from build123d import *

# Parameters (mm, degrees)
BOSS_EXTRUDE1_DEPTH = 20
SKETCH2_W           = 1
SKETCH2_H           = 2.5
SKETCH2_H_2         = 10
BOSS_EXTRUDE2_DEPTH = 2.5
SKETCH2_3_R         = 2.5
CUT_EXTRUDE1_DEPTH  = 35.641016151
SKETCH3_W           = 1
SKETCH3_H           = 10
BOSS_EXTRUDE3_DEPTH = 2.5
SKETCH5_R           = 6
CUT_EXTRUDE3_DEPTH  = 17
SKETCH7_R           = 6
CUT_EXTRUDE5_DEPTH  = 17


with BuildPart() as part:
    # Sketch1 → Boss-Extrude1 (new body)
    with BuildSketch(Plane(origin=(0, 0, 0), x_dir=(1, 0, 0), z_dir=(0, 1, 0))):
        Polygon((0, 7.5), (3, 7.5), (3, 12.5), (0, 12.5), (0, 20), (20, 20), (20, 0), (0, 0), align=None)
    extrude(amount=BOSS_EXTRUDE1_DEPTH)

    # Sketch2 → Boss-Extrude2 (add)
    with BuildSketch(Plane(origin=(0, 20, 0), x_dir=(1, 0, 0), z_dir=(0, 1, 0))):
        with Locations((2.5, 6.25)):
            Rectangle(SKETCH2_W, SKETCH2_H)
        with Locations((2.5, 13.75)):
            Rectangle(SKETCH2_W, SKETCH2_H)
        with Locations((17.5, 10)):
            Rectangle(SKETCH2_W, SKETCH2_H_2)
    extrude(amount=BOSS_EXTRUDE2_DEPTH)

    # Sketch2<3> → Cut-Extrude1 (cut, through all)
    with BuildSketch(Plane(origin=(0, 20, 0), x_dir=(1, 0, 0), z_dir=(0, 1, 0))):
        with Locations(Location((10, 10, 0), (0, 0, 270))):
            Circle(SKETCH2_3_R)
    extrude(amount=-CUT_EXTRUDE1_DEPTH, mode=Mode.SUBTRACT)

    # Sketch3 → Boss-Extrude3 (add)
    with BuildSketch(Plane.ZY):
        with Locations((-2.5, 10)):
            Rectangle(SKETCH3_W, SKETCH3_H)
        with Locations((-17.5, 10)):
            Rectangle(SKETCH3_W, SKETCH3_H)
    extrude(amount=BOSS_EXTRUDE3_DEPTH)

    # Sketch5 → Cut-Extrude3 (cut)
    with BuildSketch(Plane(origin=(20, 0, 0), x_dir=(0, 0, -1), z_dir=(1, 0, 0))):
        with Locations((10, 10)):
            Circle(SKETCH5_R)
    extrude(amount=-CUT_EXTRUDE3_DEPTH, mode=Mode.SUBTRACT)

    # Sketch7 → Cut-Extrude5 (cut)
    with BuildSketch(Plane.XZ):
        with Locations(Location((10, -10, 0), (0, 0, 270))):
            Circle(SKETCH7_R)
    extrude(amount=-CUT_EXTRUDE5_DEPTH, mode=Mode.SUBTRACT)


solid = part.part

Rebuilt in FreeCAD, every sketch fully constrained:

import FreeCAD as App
import Part
import Sketcher

V = App.Vector


def add_polygon(sketch, points):
    """Adds a closed chain of lines whose ends are joined by coincident constraints."""
    first, n = sketch.GeometryCount, len(points)
    for a, b in zip(points, points[1:] + points[:1]):
        sketch.addGeometry(Part.LineSegment(App.Vector(*a, 0), App.Vector(*b, 0)), False)
    for i in range(n):
        sketch.addConstraint(Sketcher.Constraint("Coincident", first + i, 2, first + (i + 1) % n, 1))

doc = App.newDocument("Part")
body = doc.addObject("PartDesign::Body", "Body")

# Sketch on XZ plane
sketch1 = body.newObject("Sketcher::SketchObject", "Sketch")
sketch1.AttachmentSupport = (doc.getObject("XZ_Plane"), [""])
sketch1.MapMode = "FlatFace"
add_polygon(sketch1, [(3, -7.5), (0, -7.5), (0, 0), (20, 0), (20, -20), (0, -20), (0, -12.5), (3, -12.5)])  # lines 0-7
sketch1.addConstraint(Sketcher.Constraint("Horizontal", 0))
sketch1.addConstraint(Sketcher.Constraint("Vertical", 1))
sketch1.addConstraint(Sketcher.Constraint("Horizontal", 2))
sketch1.addConstraint(Sketcher.Constraint("Vertical", 3))
sketch1.addConstraint(Sketcher.Constraint("Horizontal", 4))
sketch1.addConstraint(Sketcher.Constraint("Vertical", 5))
sketch1.addConstraint(Sketcher.Constraint("Horizontal", 6))
sketch1.addConstraint(Sketcher.Constraint("Vertical", 7))
sketch1.addConstraint(Sketcher.Constraint("Coincident", 1, 2, -1, 1))
sketch1.addConstraint(Sketcher.Constraint("PointOnObject", 4, 2, -2))
sketch1.addConstraint(Sketcher.Constraint("Equal", 4, 3))
sketch1.addConstraint(Sketcher.Constraint("Equal", 1, 5))
sketch1.addConstraint(Sketcher.Constraint("DistanceX", 0, 2, 0, 1, 3.0))
sketch1.addConstraint(Sketcher.Constraint("DistanceX", 2, 1, 2, 2, 20.0))
sketch1.addConstraint(Sketcher.Constraint("DistanceY", 7, 1, 7, 2, 5.0))
pad1 = body.newObject("PartDesign::Pad", "Pad")
pad1.Profile = sketch1
pad1.Length = 20
pad1.Reversed = True

# Sketch on XZ plane
sketch2 = body.newObject("Sketcher::SketchObject", "Sketch001")
sketch2.AttachmentSupport = (doc.getObject("XZ_Plane"), [""])
sketch2.MapMode = "FlatFace"
sketch2.AttachmentOffset = App.Placement(V(0, 0, -20), App.Rotation())
add_polygon(sketch2, [(2, -7.5), (2, -5), (3, -5), (3, -7.5)])  # lines 0-3
add_polygon(sketch2, [(2, -15), (2, -12.5), (3, -12.5), (3, -15)])  # lines 4-7
add_polygon(sketch2, [(17, -15), (17, -5), (18, -5), (18, -15)])  # lines 8-11
sketch2.addConstraint(Sketcher.Constraint("Vertical", 0))
sketch2.addConstraint(Sketcher.Constraint("Horizontal", 1))
sketch2.addConstraint(Sketcher.Constraint("Vertical", 2))
sketch2.addConstraint(Sketcher.Constraint("Horizontal", 3))
sketch2.addConstraint(Sketcher.Constraint("Vertical", 4))
sketch2.addConstraint(Sketcher.Constraint("Horizontal", 5))
sketch2.addConstraint(Sketcher.Constraint("Vertical", 6))
sketch2.addConstraint(Sketcher.Constraint("Horizontal", 7))
sketch2.addConstraint(Sketcher.Constraint("Vertical", 8))
sketch2.addConstraint(Sketcher.Constraint("Horizontal", 9))
sketch2.addConstraint(Sketcher.Constraint("Vertical", 10))
sketch2.addConstraint(Sketcher.Constraint("Horizontal", 11))
sketch2.addConstraint(Sketcher.Constraint("Horizontal", 1, 2, 8, 2))
sketch2.addConstraint(Sketcher.Constraint("Horizontal", 7, 2, 10, 2))
sketch2.addConstraint(Sketcher.Constraint("Vertical", 3, 2, 4, 2))
sketch2.addConstraint(Sketcher.Constraint("Vertical", 2, 2, 5, 2))
sketch2.addConstraint(Sketcher.Constraint("Equal", 7, 9))
sketch2.addConstraint(Sketcher.Constraint("Equal", 2, 4))
sketch2.addConstraint(Sketcher.Constraint("DistanceX", 1, 1, 1, 2, 1.0))
sketch2.addConstraint(Sketcher.Constraint("DistanceY", 8, 1, 8, 2, 10.0))
sketch2.addConstraint(Sketcher.Constraint("DistanceY", 0, 1, 0, 2, 2.5))
sketch2.addConstraint(Sketcher.Constraint("DistanceX", -1, 1, 0, 2, 2.0))
sketch2.addConstraint(Sketcher.Constraint("DistanceY", 0, 2, -1, 1, 5.0))
sketch2.addConstraint(Sketcher.Constraint("DistanceX", -1, 1, 8, 2, 17.0))
pad2 = body.newObject("PartDesign::Pad", "Pad001")
pad2.Profile = sketch2
pad2.Length = 2.5
pad2.Reversed = True

# Sketch on XZ plane
sketch3 = body.newObject("Sketcher::SketchObject", "Sketch002")
sketch3.AttachmentSupport = (doc.getObject("XZ_Plane"), [""])
sketch3.MapMode = "FlatFace"
sketch3.AttachmentOffset = App.Placement(V(0, 0, -20), App.Rotation())
sketch3.addGeometry(Part.Circle(V(10, -10, 0), V(0, 0, 1), 2.5), False)
sketch3.addConstraint(Sketcher.Constraint("Diameter", 0, 5.0))
sketch3.addConstraint(Sketcher.Constraint("DistanceX", -1, 1, 0, 3, 10.0))
sketch3.addConstraint(Sketcher.Constraint("DistanceY", 0, 3, -1, 1, 10.0))
pocket1 = body.newObject("PartDesign::Pocket", "Pocket")
pocket1.Profile = sketch3
pocket1.Type = "ThroughAll"
pocket1.Reversed = True

# Sketch on YZ plane
sketch4 = body.newObject("Sketcher::SketchObject", "Sketch003")
sketch4.AttachmentSupport = (doc.getObject("YZ_Plane"), [""])
sketch4.MapMode = "FlatFace"
add_polygon(sketch4, [(15, -3), (5, -3), (5, -2), (15, -2)])  # lines 0-3
add_polygon(sketch4, [(15, -18), (5, -18), (5, -17), (15, -17)])  # lines 4-7
sketch4.addConstraint(Sketcher.Constraint("Horizontal", 0))
sketch4.addConstraint(Sketcher.Constraint("Vertical", 1))
sketch4.addConstraint(Sketcher.Constraint("Horizontal", 2))
sketch4.addConstraint(Sketcher.Constraint("Vertical", 3))
sketch4.addConstraint(Sketcher.Constraint("Horizontal", 4))
sketch4.addConstraint(Sketcher.Constraint("Vertical", 5))
sketch4.addConstraint(Sketcher.Constraint("Horizontal", 6))
sketch4.addConstraint(Sketcher.Constraint("Vertical", 7))
sketch4.addConstraint(Sketcher.Constraint("Vertical", 1, 2, 4, 2))
sketch4.addConstraint(Sketcher.Constraint("Vertical", 3, 2, 6, 2))
sketch4.addConstraint(Sketcher.Constraint("Equal", 3, 5))
sketch4.addConstraint(Sketcher.Constraint("DistanceX", 0, 2, 0, 1, 10.0))
sketch4.addConstraint(Sketcher.Constraint("DistanceY", 1, 1, 1, 2, 1.0))
sketch4.addConstraint(Sketcher.Constraint("DistanceX", -1, 1, 0, 2, 5.0))
sketch4.addConstraint(Sketcher.Constraint("DistanceY", 0, 2, -1, 1, 3.0))
sketch4.addConstraint(Sketcher.Constraint("DistanceY", 4, 2, -1, 1, 18.0))
pad3 = body.newObject("PartDesign::Pad", "Pad002")
pad3.Profile = sketch4
pad3.Length = 2.5
pad3.Reversed = True

# Sketch on YZ plane
sketch5 = body.newObject("Sketcher::SketchObject", "Sketch004")
sketch5.AttachmentSupport = (doc.getObject("YZ_Plane"), [""])
sketch5.MapMode = "FlatFace"
sketch5.AttachmentOffset = App.Placement(V(0, 0, 20), App.Rotation())
sketch5.addGeometry(Part.Circle(V(10, -10, 0), V(0, 0, 1), 6), False)
sketch5.addConstraint(Sketcher.Constraint("Diameter", 0, 12.0))
sketch5.addConstraint(Sketcher.Constraint("DistanceX", -1, 1, 0, 3, 10.0))
sketch5.addConstraint(Sketcher.Constraint("DistanceY", 0, 3, -1, 1, 10.0))
pocket2 = body.newObject("PartDesign::Pocket", "Pocket001")
pocket2.Profile = sketch5
pocket2.Length = 17

# Sketch on XZ plane
sketch6 = body.newObject("Sketcher::SketchObject", "Sketch005")
sketch6.AttachmentSupport = (doc.getObject("XZ_Plane"), [""])
sketch6.MapMode = "FlatFace"
sketch6.addGeometry(Part.Circle(V(10, -10, 0), V(0, 0, 1), 6), False)
sketch6.addConstraint(Sketcher.Constraint("Diameter", 0, 12.0))
sketch6.addConstraint(Sketcher.Constraint("DistanceX", -1, 1, 0, 3, 10.0))
sketch6.addConstraint(Sketcher.Constraint("DistanceY", 0, 3, -1, 1, 10.0))
pocket3 = body.newObject("PartDesign::Pocket", "Pocket002")
pocket3.Profile = sketch6
pocket3.Length = 17

doc.recompute()
